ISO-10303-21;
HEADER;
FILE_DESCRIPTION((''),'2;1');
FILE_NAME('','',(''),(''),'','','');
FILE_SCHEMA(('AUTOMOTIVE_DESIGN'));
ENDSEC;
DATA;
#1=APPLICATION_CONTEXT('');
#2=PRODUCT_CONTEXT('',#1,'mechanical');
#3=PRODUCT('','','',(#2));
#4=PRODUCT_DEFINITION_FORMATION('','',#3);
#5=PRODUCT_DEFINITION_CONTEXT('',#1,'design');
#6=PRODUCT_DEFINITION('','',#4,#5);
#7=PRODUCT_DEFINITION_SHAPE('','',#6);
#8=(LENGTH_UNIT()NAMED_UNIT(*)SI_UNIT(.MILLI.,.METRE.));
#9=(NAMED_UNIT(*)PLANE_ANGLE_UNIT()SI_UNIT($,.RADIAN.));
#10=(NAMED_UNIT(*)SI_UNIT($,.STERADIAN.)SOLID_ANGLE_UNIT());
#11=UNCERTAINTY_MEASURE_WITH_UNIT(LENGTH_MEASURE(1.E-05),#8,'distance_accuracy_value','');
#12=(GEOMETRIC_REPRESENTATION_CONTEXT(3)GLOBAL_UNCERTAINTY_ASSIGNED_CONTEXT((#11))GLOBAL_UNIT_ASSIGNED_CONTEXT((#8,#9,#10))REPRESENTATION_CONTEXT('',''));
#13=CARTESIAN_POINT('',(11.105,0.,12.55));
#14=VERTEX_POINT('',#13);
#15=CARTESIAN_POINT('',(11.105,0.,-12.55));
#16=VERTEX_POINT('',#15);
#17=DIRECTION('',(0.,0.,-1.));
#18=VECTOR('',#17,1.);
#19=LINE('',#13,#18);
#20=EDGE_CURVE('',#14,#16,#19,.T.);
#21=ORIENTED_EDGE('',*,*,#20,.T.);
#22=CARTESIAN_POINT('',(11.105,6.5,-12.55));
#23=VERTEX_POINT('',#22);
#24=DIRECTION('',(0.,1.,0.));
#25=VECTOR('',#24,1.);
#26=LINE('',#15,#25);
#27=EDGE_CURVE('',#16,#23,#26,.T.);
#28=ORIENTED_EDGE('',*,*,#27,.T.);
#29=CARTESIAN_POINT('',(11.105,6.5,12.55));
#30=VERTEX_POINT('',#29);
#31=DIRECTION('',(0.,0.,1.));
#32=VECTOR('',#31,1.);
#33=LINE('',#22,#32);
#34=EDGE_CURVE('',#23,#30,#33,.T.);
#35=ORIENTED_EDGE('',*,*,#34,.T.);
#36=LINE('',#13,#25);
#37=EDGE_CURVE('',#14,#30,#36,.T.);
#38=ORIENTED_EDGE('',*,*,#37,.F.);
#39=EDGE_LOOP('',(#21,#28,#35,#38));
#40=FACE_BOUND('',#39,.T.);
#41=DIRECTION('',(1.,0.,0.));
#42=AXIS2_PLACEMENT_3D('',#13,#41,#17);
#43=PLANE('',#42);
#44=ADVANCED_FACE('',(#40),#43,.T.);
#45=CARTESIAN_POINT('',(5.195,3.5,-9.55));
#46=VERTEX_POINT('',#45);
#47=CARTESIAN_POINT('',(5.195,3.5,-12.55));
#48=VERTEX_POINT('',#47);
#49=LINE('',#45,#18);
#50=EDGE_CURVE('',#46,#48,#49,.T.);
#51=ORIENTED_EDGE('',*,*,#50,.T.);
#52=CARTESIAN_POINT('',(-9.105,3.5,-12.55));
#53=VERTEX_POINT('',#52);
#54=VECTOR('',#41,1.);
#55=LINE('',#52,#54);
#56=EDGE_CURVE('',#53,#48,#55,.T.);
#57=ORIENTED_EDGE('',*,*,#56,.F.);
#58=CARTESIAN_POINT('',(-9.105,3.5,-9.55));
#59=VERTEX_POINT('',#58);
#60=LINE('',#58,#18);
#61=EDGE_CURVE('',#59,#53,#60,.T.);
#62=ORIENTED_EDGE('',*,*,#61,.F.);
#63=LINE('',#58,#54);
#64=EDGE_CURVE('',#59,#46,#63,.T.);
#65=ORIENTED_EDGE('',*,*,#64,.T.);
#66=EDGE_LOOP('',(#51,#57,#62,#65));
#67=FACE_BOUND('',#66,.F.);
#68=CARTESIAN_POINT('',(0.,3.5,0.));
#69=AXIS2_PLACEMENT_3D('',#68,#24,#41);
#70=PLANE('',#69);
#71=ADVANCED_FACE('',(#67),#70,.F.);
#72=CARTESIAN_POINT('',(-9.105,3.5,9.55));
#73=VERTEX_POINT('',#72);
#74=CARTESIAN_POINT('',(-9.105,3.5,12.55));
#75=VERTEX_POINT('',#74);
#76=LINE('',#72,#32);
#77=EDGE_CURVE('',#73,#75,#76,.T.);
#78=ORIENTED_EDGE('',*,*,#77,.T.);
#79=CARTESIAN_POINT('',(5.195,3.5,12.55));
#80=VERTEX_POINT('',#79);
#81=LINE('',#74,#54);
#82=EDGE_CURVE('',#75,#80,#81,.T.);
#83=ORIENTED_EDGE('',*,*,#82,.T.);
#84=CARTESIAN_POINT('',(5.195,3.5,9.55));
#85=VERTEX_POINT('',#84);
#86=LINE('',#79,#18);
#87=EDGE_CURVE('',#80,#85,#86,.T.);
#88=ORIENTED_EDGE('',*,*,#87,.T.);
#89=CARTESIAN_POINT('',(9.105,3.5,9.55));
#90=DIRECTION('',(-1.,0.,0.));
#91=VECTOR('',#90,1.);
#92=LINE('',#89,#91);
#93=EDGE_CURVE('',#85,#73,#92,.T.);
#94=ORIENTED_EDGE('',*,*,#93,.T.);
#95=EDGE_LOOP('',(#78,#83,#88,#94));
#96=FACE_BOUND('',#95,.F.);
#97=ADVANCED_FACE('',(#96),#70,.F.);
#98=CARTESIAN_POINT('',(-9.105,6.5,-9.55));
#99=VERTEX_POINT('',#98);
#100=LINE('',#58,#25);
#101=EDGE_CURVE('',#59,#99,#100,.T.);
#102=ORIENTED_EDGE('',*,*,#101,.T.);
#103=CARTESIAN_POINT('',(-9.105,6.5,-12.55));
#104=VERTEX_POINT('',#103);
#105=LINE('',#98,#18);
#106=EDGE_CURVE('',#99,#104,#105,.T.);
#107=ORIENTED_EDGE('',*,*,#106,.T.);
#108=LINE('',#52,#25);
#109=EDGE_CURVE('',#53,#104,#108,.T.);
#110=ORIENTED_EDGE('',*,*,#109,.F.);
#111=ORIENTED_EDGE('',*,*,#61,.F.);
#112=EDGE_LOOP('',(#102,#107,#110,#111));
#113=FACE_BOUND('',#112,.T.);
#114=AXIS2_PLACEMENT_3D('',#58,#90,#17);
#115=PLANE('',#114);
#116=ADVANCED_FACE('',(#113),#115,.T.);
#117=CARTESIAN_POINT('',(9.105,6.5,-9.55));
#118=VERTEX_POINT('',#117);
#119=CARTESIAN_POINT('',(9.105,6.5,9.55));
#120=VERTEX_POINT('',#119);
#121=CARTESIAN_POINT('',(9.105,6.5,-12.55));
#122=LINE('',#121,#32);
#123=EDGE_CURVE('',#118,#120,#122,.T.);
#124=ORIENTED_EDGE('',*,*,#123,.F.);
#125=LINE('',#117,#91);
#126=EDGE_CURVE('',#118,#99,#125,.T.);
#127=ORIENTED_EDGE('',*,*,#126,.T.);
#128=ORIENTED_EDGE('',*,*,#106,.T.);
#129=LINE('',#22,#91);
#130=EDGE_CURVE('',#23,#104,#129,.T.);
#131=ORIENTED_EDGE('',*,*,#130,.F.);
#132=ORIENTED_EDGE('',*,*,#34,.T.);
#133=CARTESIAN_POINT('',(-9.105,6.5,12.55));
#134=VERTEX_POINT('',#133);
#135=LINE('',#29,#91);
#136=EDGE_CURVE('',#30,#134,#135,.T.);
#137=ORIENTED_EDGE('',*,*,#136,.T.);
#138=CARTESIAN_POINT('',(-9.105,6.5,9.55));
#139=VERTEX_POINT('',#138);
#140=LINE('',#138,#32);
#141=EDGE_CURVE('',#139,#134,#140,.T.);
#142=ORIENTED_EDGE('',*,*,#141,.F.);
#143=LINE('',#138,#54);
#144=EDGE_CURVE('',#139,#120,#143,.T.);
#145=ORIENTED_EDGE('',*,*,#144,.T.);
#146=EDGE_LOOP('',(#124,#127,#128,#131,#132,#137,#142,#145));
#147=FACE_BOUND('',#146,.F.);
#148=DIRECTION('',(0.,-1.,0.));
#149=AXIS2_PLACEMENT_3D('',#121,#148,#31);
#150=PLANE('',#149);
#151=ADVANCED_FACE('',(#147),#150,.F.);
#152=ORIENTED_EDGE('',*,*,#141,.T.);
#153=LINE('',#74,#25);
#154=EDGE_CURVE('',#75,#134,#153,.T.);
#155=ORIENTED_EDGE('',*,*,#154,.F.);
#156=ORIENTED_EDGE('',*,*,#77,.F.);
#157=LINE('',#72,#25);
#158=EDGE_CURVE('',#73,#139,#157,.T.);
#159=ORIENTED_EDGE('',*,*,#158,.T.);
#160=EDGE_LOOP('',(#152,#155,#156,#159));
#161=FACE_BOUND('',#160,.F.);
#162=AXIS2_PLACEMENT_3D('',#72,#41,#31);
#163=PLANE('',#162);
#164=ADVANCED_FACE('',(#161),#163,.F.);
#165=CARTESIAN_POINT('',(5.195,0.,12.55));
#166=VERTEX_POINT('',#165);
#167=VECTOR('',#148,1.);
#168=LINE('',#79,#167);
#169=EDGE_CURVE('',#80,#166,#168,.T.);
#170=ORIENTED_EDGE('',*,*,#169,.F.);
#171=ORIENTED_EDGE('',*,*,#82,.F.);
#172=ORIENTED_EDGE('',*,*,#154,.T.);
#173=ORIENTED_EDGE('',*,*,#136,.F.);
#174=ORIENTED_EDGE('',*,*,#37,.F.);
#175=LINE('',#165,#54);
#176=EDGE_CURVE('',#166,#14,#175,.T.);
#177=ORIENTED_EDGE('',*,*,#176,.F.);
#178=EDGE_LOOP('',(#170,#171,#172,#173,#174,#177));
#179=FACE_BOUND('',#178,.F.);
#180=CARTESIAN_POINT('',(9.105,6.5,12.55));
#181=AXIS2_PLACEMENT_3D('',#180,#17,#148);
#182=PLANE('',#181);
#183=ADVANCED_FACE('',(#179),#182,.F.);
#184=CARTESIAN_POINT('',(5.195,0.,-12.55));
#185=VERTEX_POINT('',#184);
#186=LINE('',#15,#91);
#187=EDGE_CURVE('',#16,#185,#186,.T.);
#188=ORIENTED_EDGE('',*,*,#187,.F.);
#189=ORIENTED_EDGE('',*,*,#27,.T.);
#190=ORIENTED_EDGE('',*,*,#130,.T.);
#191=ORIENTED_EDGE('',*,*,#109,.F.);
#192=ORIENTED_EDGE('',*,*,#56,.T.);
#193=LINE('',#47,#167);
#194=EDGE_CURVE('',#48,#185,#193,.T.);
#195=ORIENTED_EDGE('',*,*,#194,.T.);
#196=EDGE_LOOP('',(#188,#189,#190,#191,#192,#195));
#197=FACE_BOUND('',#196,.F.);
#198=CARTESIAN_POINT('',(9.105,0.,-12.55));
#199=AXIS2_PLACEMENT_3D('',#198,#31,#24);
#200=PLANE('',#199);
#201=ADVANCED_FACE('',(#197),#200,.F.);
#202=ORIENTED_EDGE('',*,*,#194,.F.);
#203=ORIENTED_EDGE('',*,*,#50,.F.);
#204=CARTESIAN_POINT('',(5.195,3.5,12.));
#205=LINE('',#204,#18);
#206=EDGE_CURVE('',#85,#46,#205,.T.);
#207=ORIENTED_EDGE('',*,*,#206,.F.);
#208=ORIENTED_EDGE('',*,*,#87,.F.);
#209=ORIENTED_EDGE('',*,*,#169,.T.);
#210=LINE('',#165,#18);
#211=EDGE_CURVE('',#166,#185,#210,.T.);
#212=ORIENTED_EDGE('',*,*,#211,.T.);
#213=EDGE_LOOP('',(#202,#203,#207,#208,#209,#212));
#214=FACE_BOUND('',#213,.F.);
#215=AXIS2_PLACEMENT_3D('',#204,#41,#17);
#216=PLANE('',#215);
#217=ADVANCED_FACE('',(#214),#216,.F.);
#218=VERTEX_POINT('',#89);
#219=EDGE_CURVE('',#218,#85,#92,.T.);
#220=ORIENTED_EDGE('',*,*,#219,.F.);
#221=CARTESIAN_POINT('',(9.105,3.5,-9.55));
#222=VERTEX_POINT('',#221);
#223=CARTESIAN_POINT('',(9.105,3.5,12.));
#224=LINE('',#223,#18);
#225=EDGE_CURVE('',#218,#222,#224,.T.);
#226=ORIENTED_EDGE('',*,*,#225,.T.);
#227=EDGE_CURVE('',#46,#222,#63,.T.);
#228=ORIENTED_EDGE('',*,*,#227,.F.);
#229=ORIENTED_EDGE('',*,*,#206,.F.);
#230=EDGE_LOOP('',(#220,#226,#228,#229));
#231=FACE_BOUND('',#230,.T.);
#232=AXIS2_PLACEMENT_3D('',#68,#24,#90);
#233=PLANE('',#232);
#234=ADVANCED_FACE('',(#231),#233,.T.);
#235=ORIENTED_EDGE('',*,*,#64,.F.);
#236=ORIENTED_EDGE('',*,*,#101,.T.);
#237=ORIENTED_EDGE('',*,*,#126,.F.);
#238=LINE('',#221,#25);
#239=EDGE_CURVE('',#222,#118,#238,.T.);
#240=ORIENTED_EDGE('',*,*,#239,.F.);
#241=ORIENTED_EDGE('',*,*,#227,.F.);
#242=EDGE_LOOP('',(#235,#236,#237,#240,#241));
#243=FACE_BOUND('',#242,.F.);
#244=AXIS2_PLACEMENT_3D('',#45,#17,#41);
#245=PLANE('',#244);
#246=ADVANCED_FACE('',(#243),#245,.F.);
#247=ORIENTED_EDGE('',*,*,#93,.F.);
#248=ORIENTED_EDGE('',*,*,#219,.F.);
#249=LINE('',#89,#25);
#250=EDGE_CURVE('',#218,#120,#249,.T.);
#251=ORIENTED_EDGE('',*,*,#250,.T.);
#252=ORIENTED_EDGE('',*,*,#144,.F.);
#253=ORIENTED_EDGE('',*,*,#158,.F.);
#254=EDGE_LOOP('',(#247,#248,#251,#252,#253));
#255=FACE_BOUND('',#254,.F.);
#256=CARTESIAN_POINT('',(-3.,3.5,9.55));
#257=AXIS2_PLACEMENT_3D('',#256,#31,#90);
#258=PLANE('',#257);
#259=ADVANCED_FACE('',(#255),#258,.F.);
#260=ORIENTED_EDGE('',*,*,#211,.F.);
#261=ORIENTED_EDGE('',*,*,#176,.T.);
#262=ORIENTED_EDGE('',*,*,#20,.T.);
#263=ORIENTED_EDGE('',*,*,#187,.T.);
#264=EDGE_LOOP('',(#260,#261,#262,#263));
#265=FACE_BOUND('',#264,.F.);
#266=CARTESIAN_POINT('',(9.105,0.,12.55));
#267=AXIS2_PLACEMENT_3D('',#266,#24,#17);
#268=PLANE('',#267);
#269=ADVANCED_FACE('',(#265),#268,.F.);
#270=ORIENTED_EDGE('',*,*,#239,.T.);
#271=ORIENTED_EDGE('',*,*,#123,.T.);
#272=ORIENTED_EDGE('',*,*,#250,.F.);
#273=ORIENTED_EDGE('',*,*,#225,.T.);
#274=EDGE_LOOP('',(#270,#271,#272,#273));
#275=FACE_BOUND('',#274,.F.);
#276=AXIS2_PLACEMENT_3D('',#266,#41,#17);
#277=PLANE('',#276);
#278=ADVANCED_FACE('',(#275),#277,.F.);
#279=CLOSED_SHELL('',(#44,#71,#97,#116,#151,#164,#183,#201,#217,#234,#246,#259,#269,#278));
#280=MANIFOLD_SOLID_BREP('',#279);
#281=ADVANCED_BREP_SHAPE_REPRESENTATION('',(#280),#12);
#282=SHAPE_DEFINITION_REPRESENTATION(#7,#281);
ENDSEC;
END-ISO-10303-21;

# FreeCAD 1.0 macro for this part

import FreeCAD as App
import Part
import Sketcher
Q = App.Units.Quantity


def add_polygon(sketch, points):
    """Adds a closed chain of lines whose ends are joined by coincident constraints."""
    first, n = sketch.GeometryCount, len(points)
    for a, b in zip(points, points[1:] + points[:1]):
        sketch.addGeometry(Part.LineSegment(App.Vector(*a, 0), App.Vector(*b, 0)), False)
    for i in range(n):
        sketch.addConstraint(Sketcher.Constraint("Coincident", first + i, 2, first + (i + 1) % n, 1))

doc = App.newDocument("Part")
body = doc.addObject("PartDesign::Body", "Body")

# Sketch on XZ plane
sketch1 = body.newObject("Sketcher::SketchObject", "Sketch")
sketch1.AttachmentSupport = (doc.getObject("XZ_Plane"), [""])
sketch1.MapMode = "FlatFace"
add_polygon(sketch1, [(-9.105, -12), (-9.105, 12), (9.105, 12), (9.105, -12)])  # lines 0-3
sketch1.addConstraint(Sketcher.Constraint("Vertical", 0))
sketch1.addConstraint(Sketcher.Constraint("Horizontal", 1))
sketch1.addConstraint(Sketcher.Constraint("Vertical", 2))
sketch1.addConstraint(Sketcher.Constraint("Horizontal", 3))
sketch1.addConstraint(Sketcher.Constraint("Symmetric", 0, 2, 2, 2, -1, 1))
sketch1.addConstraint(Sketcher.Constraint("DistanceY", 0, 1, 0, 2, Q("24 mm")))
sketch1.addConstraint(Sketcher.Constraint("DistanceX", 1, 1, 1, 2, Q("18.21 mm")))
pad1 = body.newObject("PartDesign::Pad", "Pad")
pad1.Profile = sketch1
pad1.Length = 3.5
pad1.Reversed = True

# Sketch on XZ plane
sketch2 = body.newObject("Sketcher::SketchObject", "Sketch001")
sketch2.AttachmentSupport = (doc.getObject("XZ_Plane"), [""])
sketch2.MapMode = "FlatFace"
sketch2.AttachmentOffset = App.Placement(App.Vector(0, 0, -3.5), App.Rotation())
add_polygon(sketch2, [(-9.105, 12), (5.195, 12), (5.195, -12), (-9.105, -12)])  # lines 0-3
sketch2.addConstraint(Sketcher.Constraint("Horizontal", 0))
sketch2.addConstraint(Sketcher.Constraint("Vertical", 1))
sketch2.addConstraint(Sketcher.Constraint("Horizontal", 2))
sketch2.addConstraint(Sketcher.Constraint("Vertical", 3))
sketch2.addConstraint(Sketcher.Constraint("DistanceY", 1, 2, 1, 1, Q("24 mm")))
sketch2.addConstraint(Sketcher.Constraint("DistanceX", 0, 1, 0, 2, Q("14.3 mm")))
sketch2.addConstraint(Sketcher.Constraint("DistanceY", -1, 1, 0, 2, Q("12 mm")))
sketch2.addConstraint(Sketcher.Constraint("DistanceX", -1, 1, 0, 2, Q("5.195 mm")))
pocket1 = body.newObject("PartDesign::Pocket", "Pocket")
pocket1.Profile = sketch2
pocket1.Type = "ThroughAll"
pocket1.Reversed = True

# Sketch on XZ plane
sketch3 = body.newObject("Sketcher::SketchObject", "Sketch002")
sketch3.AttachmentSupport = (doc.getObject("XZ_Plane"), [""])
sketch3.MapMode = "FlatFace"
sketch3.AttachmentOffset = App.Placement(App.Vector(0, 0, -3.5), App.Rotation())
add_polygon(sketch3, [(9.105, 12.55), (9.105, 9.55), (-9.105, 9.55), (-9.105, 12.55)])  # lines 0-3
add_polygon(sketch3, [(-9.105, -9.55), (9.105, -9.55), (9.105, -12.55), (-9.105, -12.55)])  # lines 4-7
sketch3.addConstraint(Sketcher.Constraint("Vertical", 0))
sketch3.addConstraint(Sketcher.Constraint("Horizontal", 1))
sketch3.addConstraint(Sketcher.Constraint("Vertical", 2))
sketch3.addConstraint(Sketcher.Constraint("Horizontal", 3))
sketch3.addConstraint(Sketcher.Constraint("Horizontal", 4))
sketch3.addConstraint(Sketcher.Constraint("Vertical", 5))
sketch3.addConstraint(Sketcher.Constraint("Horizontal", 6))
sketch3.addConstraint(Sketcher.Constraint("Vertical", 7))
sketch3.addConstraint(Sketcher.Constraint("Symmetric", 1, 2, 4, 2, -1, 1))
sketch3.addConstraint(Sketcher.Constraint("Symmetric", 3, 2, 6, 2, -1, 1))
sketch3.addConstraint(Sketcher.Constraint("Vertical", 3, 2, 4, 2))
sketch3.addConstraint(Sketcher.Constraint("DistanceY", 0, 2, 0, 1, Q("3 mm")))
sketch3.addConstraint(Sketcher.Constraint("DistanceX", 1, 2, 1, 1, Q("18.21 mm")))
sketch3.addConstraint(Sketcher.Constraint("DistanceY", 4, 2, 0, 2, Q("19.1 mm")))
pad2 = body.newObject("PartDesign::Pad", "Pad001")
pad2.Profile = sketch3
pad2.Length = 3
pad2.Reversed = True

# Sketch on XZ plane
sketch4 = body.newObject("Sketcher::SketchObject", "Sketch003")
sketch4.AttachmentSupport = (doc.getObject("XZ_Plane"), [""])
sketch4.MapMode = "FlatFace"
sketch4.AttachmentOffset = App.Placement(App.Vector(0, 0, -3.5), App.Rotation())
add_polygon(sketch4, [(5.195, 12.55), (5.195, 9.55), (9.105, 9.55), (9.105, 12.55)])  # lines 0-3
add_polygon(sketch4, [(9.105, -9.55), (5.195, -9.55), (5.195, -12.55), (9.105, -12.55)])  # lines 4-7
sketch4.addConstraint(Sketcher.Constraint("Vertical", 0))
sketch4.addConstraint(Sketcher.Constraint("Horizontal", 1))
sketch4.addConstraint(Sketcher.Constraint("Vertical", 2))
sketch4.addConstraint(Sketcher.Constraint("Horizontal", 3))
sketch4.addConstraint(Sketcher.Constraint("Horizontal", 4))
sketch4.addConstraint(Sketcher.Constraint("Vertical", 5))
sketch4.addConstraint(Sketcher.Constraint("Horizontal", 6))
sketch4.addConstraint(Sketcher.Constraint("Vertical", 7))
sketch4.addConstraint(Sketcher.Constraint("Symmetric", 0, 2, 4, 2, -1))
sketch4.addConstraint(Sketcher.Constraint("Symmetric", 2, 2, 6, 2, -1))
sketch4.addConstraint(Sketcher.Constraint("DistanceY", 0, 2, 0, 1, Q("3 mm")))
sketch4.addConstraint(Sketcher.Constraint("DistanceX", 1, 1, 1, 2, Q("3.91 mm")))
sketch4.addConstraint(Sketcher.Constraint("DistanceY", 4, 2, 0, 2, Q("19.1 mm")))
sketch4.addConstraint(Sketcher.Constraint("DistanceX", -1, 1, 0, 2, Q("5.195 mm")))
pad3 = body.newObject("PartDesign::Pad", "Pad002")
pad3.Profile = sketch4
pad3.Length = 3.5

# Sketch on YZ plane
sketch5 = body.newObject("Sketcher::SketchObject", "Sketch004")
sketch5.AttachmentSupport = (doc.getObject("YZ_Plane"), [""])
sketch5.MapMode = "FlatFace"
sketch5.AttachmentOffset = App.Placement(App.Vector(0, 0, 9.105), App.Rotation())
add_polygon(sketch5, [(6.5, 12.55), (0, 12.55), (0, -12.55), (6.5, -12.55)])  # lines 0-3
sketch5.addConstraint(Sketcher.Constraint("Horizontal", 0))
sketch5.addConstraint(Sketcher.Constraint("Vertical", 1))
sketch5.addConstraint(Sketcher.Constraint("Horizontal", 2))
sketch5.addConstraint(Sketcher.Constraint("Vertical", 3))
sketch5.addConstraint(Sketcher.Constraint("Symmetric", 0, 2, 1, 2, -1, 1))
sketch5.addConstraint(Sketcher.Constraint("DistanceX", 0, 2, 0, 1, Q("6.5 mm")))
sketch5.addConstraint(Sketcher.Constraint("DistanceY", 1, 2, 1, 1, Q("25.1 mm")))
pad4 = body.newObject("PartDesign::Pad", "Pad003")
pad4.Profile = sketch5
pad4.Length = 2

doc.recompute()
